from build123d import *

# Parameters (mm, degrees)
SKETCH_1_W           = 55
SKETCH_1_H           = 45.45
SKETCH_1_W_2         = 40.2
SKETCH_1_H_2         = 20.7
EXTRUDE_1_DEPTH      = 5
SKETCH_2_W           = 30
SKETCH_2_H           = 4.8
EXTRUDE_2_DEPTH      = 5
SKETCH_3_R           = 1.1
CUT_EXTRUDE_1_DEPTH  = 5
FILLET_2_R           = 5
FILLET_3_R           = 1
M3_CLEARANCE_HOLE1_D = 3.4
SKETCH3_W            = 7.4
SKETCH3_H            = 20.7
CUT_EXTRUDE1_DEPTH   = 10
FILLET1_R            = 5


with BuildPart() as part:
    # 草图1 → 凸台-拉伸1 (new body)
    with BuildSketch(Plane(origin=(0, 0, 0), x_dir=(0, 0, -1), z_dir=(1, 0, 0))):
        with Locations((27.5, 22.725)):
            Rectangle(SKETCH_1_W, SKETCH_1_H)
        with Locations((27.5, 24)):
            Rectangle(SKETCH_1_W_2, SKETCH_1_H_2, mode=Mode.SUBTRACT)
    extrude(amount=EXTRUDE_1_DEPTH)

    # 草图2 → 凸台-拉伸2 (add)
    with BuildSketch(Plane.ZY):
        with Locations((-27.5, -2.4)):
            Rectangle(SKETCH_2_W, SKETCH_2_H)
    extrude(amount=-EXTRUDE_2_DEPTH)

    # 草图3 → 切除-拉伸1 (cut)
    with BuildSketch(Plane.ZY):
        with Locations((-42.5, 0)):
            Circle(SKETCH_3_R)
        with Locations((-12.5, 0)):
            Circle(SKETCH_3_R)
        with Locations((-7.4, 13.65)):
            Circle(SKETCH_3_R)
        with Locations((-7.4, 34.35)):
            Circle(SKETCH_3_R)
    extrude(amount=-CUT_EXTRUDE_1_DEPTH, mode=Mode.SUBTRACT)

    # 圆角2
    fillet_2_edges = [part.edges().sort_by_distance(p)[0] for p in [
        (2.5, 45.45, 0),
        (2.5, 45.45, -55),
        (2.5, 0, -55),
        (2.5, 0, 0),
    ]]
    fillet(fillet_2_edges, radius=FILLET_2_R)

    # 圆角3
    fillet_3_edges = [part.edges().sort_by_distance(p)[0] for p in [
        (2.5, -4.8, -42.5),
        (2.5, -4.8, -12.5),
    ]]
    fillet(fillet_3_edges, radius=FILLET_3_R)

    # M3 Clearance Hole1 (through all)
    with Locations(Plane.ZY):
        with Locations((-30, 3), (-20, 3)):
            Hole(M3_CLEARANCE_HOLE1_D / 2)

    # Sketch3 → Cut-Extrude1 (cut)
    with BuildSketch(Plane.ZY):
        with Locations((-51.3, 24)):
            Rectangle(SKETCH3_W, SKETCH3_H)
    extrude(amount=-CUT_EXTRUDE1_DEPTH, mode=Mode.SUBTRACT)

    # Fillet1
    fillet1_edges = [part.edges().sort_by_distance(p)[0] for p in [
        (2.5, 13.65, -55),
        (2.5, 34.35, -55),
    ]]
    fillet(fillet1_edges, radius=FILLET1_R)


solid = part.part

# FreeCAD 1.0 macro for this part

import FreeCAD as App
import Part
import Sketcher

V = App.Vector


def edges_at(feature, points):
    """Names of the edges that pass closest to the given points."""
    edges = feature.Shape.Edges
    near = lambda p: min(range(len(edges)), key=lambda i: edges[i].distToShape(Part.Vertex(*p))[0])
    return sorted({f"Edge{near(p) + 1}" for p in points})


def add_polygon(sketch, points):
    """Adds a closed chain of lines whose ends are joined by coincident constraints."""
    first, n = sketch.GeometryCount, len(points)
    for a, b in zip(points, points[1:] + points[:1]):
        sketch.addGeometry(Part.LineSegment(App.Vector(*a, 0), App.Vector(*b, 0)), False)
    for i in range(n):
        sketch.addConstraint(Sketcher.Constraint("Coincident", first + i, 2, first + (i + 1) % n, 1))

doc = App.newDocument("Part")
body = doc.addObject("PartDesign::Body", "Body")

sketch1 = body.newObject("Sketcher::SketchObject", "Sketch")
sketch1.AttachmentSupport = (doc.getObject("YZ_Plane"), [""])
sketch1.MapMode = "FlatFace"
add_polygon(sketch1, [(45, 0), (0, 0), (0, -55), (45, -55)])
add_polygon(sketch1, [(14, -48), (14, -7), (34, -7), (34, -48)])
sketch1.addConstraint([
    Sketcher.Constraint("Horizontal", 0),
    Sketcher.Constraint("Vertical", 1),
    Sketcher.Constraint("Horizontal", 2),
    Sketcher.Constraint("Vertical", 3),
    Sketcher.Constraint("Vertical", 4),
    Sketcher.Constraint("Horizontal", 5),
    Sketcher.Constraint("Vertical", 6),
    Sketcher.Constraint("Horizontal", 7),
    Sketcher.Constraint("Coincident", 0, 2, -1, 1),
    Sketcher.Constraint("DistanceY", 1, 2, 1, 1, 55.0),
    Sketcher.Constraint("DistanceX", 5, 1, 5, 2, 20.7),
    Sketcher.Constraint("DistanceY", 4, 1, 4, 2, 40.2),
    Sketcher.Constraint("DistanceX", 0, 2, 0, 1, 45.45),
    Sketcher.Constraint("DistanceY", 4, 2, -1, 1, 7.4),
    Sketcher.Constraint("DistanceX", 4, 2, 3, 2, 31.8),
])
pad1 = body.newObject("PartDesign::Pad", "Pad")
pad1.Profile = sketch1
pad1.Length = 5

sketch2 = body.newObject("Sketcher::SketchObject", "Sketch001")
sketch2.AttachmentSupport = (doc.getObject("YZ_Plane"), [""])
sketch2.MapMode = "FlatFace"
add_polygon(sketch2, [(0, -42.5), (-4.8, -42.5), (-4.8, -12.5), (0, -12.5)])
sketch2.addConstraint([
    Sketcher.Constraint("Horizontal", 0),
    Sketcher.Constraint("Vertical", 1),
    Sketcher.Constraint("Horizontal", 2),
    Sketcher.Constraint("Vertical", 3),
    Sketcher.Constraint("PointOnObject", 2, 2, -2),
    Sketcher.Constraint("DistanceY", 1, 1, 1, 2, 30.0),
    Sketcher.Constraint("DistanceX", 0, 2, 0, 1, 4.8),
    Sketcher.Constraint("DistanceY", 0, 2, -1, 1, 42.5),
])
pad2 = body.newObject("PartDesign::Pad", "Pad001")
pad2.Profile = sketch2
pad2.Length = 5

sketch3 = body.newObject("Sketcher::SketchObject", "Sketch002")
sketch3.AttachmentSupport = (doc.getObject("YZ_Plane"), [""])
sketch3.MapMode = "FlatFace"
sketch3.addGeometry([
    Part.Circle(V(0, -42.5, 0), V(0, 0, 1), 1.1),
    Part.Circle(V(0, -12.5, 0), V(0, 0, 1), 1.1),
    Part.Circle(V(13.7, -7.4, 0), V(0, 0, 1), 1.1),
    Part.Circle(V(34.4, -7.4, 0), V(0, 0, 1), 1.1),
], False)
sketch3.addConstraint([
    Sketcher.Constraint("Equal", 0, 1),
    Sketcher.Constraint("Equal", 1, 2),
    Sketcher.Constraint("Equal", 2, 3),
    Sketcher.Constraint("PointOnObject", 0, 3, -2),
    Sketcher.Constraint("PointOnObject", 1, 3, -2),
    Sketcher.Constraint("Horizontal", 2, 3, 3, 3),
    Sketcher.Constraint("Diameter", 0, 2.2),
    Sketcher.Constraint("DistanceY", 0, 3, 1, 3, 30.0),
    Sketcher.Constraint("DistanceY", 0, 3, -1, 1, 42.5),
    Sketcher.Constraint("DistanceY", 2, 3, -1, 1, 7.4),
    Sketcher.Constraint("DistanceX", 2, 3, 3, 3, 20.7),
    Sketcher.Constraint("DistanceX", -1, 1, 2, 3, 13.65),
])
pocket1 = body.newObject("PartDesign::Pocket", "Pocket")
pocket1.Profile = sketch3
pocket1.Length = 5
pocket1.Reversed = True
doc.recompute()

fillet = body.newObject("PartDesign::Fillet", "Fillet")
fillet.Base = (pocket1, edges_at(pocket1, [
    (2.5, 45.45, 0),
    (2.5, 45.45, -55),
    (2.5, 0, -55),
    (2.5, 0, 0),
]))
fillet.Radius = 5
doc.recompute()

fillet2 = body.newObject("PartDesign::Fillet", "Fillet001")
fillet2.Base = (fillet, edges_at(fillet, [(2.5, -4.8, -42.5), (2.5, -4.8, -12.5)]))
fillet2.Radius = 1

sketch4 = body.newObject("Sketcher::SketchObject", "Sketch003")
sketch4.AttachmentSupport = (doc.getObject("YZ_Plane"), [""])
sketch4.MapMode = "FlatFace"
sketch4.addGeometry([
    Part.Circle(V(3, -30, 0), V(0, 0, 1), 1.7),
    Part.Circle(V(3, -20, 0), V(0, 0, 1), 1.7),
], False)
sketch4.addConstraint([
    Sketcher.Constraint("Equal", 0, 1),
    Sketcher.Constraint("Vertical", 0, 3, 1, 3),
    Sketcher.Constraint("Diameter", 0, 3.4),
    Sketcher.Constraint("DistanceX", -1, 1, 0, 3, 3.0),
    Sketcher.Constraint("DistanceY", 0, 3, -1, 1, 30.0),
    Sketcher.Constraint("DistanceY", 1, 3, -1, 1, 20.0),
])
doc.recompute()
hole = body.newObject("PartDesign::Hole", "Hole")
hole.Profile = sketch4
hole.ThreadType = "None"
hole.Diameter = 3.4
hole.DepthType = "ThroughAll"
hole.Reversed = True

sketch5 = body.newObject("Sketcher::SketchObject", "Sketch004")
sketch5.AttachmentSupport = (doc.getObject("YZ_Plane"), [""])
sketch5.MapMode = "FlatFace"
add_polygon(sketch5, [(34, -55), (14, -55), (14, -48), (34, -48)])
sketch5.addConstraint([
    Sketcher.Constraint("Horizontal", 0),
    Sketcher.Constraint("Vertical", 1),
    Sketcher.Constraint("Horizontal", 2),
    Sketcher.Constraint("Vertical", 3),
    Sketcher.Constraint("DistanceX", 0, 2, 0, 1, 20.7),
    Sketcher.Constraint("DistanceY", 1, 1, 1, 2, 7.4),
    Sketcher.Constraint("DistanceY", 0, 2, -1, 1, 55.0),
    Sketcher.Constraint("DistanceX", -1, 1, 0, 2, 13.65),
])
pocket2 = body.newObject("PartDesign::Pocket", "Pocket001")
pocket2.Profile = sketch5
pocket2.Length = 10
pocket2.Reversed = True
doc.recompute()

fillet3 = body.newObject("PartDesign::Fillet", "Fillet002")
fillet3.Base = (pocket2, edges_at(pocket2, [(2.5, 13.65, -55), (2.5, 34.35, -55)]))
fillet3.Radius = 5

doc.recompute()
